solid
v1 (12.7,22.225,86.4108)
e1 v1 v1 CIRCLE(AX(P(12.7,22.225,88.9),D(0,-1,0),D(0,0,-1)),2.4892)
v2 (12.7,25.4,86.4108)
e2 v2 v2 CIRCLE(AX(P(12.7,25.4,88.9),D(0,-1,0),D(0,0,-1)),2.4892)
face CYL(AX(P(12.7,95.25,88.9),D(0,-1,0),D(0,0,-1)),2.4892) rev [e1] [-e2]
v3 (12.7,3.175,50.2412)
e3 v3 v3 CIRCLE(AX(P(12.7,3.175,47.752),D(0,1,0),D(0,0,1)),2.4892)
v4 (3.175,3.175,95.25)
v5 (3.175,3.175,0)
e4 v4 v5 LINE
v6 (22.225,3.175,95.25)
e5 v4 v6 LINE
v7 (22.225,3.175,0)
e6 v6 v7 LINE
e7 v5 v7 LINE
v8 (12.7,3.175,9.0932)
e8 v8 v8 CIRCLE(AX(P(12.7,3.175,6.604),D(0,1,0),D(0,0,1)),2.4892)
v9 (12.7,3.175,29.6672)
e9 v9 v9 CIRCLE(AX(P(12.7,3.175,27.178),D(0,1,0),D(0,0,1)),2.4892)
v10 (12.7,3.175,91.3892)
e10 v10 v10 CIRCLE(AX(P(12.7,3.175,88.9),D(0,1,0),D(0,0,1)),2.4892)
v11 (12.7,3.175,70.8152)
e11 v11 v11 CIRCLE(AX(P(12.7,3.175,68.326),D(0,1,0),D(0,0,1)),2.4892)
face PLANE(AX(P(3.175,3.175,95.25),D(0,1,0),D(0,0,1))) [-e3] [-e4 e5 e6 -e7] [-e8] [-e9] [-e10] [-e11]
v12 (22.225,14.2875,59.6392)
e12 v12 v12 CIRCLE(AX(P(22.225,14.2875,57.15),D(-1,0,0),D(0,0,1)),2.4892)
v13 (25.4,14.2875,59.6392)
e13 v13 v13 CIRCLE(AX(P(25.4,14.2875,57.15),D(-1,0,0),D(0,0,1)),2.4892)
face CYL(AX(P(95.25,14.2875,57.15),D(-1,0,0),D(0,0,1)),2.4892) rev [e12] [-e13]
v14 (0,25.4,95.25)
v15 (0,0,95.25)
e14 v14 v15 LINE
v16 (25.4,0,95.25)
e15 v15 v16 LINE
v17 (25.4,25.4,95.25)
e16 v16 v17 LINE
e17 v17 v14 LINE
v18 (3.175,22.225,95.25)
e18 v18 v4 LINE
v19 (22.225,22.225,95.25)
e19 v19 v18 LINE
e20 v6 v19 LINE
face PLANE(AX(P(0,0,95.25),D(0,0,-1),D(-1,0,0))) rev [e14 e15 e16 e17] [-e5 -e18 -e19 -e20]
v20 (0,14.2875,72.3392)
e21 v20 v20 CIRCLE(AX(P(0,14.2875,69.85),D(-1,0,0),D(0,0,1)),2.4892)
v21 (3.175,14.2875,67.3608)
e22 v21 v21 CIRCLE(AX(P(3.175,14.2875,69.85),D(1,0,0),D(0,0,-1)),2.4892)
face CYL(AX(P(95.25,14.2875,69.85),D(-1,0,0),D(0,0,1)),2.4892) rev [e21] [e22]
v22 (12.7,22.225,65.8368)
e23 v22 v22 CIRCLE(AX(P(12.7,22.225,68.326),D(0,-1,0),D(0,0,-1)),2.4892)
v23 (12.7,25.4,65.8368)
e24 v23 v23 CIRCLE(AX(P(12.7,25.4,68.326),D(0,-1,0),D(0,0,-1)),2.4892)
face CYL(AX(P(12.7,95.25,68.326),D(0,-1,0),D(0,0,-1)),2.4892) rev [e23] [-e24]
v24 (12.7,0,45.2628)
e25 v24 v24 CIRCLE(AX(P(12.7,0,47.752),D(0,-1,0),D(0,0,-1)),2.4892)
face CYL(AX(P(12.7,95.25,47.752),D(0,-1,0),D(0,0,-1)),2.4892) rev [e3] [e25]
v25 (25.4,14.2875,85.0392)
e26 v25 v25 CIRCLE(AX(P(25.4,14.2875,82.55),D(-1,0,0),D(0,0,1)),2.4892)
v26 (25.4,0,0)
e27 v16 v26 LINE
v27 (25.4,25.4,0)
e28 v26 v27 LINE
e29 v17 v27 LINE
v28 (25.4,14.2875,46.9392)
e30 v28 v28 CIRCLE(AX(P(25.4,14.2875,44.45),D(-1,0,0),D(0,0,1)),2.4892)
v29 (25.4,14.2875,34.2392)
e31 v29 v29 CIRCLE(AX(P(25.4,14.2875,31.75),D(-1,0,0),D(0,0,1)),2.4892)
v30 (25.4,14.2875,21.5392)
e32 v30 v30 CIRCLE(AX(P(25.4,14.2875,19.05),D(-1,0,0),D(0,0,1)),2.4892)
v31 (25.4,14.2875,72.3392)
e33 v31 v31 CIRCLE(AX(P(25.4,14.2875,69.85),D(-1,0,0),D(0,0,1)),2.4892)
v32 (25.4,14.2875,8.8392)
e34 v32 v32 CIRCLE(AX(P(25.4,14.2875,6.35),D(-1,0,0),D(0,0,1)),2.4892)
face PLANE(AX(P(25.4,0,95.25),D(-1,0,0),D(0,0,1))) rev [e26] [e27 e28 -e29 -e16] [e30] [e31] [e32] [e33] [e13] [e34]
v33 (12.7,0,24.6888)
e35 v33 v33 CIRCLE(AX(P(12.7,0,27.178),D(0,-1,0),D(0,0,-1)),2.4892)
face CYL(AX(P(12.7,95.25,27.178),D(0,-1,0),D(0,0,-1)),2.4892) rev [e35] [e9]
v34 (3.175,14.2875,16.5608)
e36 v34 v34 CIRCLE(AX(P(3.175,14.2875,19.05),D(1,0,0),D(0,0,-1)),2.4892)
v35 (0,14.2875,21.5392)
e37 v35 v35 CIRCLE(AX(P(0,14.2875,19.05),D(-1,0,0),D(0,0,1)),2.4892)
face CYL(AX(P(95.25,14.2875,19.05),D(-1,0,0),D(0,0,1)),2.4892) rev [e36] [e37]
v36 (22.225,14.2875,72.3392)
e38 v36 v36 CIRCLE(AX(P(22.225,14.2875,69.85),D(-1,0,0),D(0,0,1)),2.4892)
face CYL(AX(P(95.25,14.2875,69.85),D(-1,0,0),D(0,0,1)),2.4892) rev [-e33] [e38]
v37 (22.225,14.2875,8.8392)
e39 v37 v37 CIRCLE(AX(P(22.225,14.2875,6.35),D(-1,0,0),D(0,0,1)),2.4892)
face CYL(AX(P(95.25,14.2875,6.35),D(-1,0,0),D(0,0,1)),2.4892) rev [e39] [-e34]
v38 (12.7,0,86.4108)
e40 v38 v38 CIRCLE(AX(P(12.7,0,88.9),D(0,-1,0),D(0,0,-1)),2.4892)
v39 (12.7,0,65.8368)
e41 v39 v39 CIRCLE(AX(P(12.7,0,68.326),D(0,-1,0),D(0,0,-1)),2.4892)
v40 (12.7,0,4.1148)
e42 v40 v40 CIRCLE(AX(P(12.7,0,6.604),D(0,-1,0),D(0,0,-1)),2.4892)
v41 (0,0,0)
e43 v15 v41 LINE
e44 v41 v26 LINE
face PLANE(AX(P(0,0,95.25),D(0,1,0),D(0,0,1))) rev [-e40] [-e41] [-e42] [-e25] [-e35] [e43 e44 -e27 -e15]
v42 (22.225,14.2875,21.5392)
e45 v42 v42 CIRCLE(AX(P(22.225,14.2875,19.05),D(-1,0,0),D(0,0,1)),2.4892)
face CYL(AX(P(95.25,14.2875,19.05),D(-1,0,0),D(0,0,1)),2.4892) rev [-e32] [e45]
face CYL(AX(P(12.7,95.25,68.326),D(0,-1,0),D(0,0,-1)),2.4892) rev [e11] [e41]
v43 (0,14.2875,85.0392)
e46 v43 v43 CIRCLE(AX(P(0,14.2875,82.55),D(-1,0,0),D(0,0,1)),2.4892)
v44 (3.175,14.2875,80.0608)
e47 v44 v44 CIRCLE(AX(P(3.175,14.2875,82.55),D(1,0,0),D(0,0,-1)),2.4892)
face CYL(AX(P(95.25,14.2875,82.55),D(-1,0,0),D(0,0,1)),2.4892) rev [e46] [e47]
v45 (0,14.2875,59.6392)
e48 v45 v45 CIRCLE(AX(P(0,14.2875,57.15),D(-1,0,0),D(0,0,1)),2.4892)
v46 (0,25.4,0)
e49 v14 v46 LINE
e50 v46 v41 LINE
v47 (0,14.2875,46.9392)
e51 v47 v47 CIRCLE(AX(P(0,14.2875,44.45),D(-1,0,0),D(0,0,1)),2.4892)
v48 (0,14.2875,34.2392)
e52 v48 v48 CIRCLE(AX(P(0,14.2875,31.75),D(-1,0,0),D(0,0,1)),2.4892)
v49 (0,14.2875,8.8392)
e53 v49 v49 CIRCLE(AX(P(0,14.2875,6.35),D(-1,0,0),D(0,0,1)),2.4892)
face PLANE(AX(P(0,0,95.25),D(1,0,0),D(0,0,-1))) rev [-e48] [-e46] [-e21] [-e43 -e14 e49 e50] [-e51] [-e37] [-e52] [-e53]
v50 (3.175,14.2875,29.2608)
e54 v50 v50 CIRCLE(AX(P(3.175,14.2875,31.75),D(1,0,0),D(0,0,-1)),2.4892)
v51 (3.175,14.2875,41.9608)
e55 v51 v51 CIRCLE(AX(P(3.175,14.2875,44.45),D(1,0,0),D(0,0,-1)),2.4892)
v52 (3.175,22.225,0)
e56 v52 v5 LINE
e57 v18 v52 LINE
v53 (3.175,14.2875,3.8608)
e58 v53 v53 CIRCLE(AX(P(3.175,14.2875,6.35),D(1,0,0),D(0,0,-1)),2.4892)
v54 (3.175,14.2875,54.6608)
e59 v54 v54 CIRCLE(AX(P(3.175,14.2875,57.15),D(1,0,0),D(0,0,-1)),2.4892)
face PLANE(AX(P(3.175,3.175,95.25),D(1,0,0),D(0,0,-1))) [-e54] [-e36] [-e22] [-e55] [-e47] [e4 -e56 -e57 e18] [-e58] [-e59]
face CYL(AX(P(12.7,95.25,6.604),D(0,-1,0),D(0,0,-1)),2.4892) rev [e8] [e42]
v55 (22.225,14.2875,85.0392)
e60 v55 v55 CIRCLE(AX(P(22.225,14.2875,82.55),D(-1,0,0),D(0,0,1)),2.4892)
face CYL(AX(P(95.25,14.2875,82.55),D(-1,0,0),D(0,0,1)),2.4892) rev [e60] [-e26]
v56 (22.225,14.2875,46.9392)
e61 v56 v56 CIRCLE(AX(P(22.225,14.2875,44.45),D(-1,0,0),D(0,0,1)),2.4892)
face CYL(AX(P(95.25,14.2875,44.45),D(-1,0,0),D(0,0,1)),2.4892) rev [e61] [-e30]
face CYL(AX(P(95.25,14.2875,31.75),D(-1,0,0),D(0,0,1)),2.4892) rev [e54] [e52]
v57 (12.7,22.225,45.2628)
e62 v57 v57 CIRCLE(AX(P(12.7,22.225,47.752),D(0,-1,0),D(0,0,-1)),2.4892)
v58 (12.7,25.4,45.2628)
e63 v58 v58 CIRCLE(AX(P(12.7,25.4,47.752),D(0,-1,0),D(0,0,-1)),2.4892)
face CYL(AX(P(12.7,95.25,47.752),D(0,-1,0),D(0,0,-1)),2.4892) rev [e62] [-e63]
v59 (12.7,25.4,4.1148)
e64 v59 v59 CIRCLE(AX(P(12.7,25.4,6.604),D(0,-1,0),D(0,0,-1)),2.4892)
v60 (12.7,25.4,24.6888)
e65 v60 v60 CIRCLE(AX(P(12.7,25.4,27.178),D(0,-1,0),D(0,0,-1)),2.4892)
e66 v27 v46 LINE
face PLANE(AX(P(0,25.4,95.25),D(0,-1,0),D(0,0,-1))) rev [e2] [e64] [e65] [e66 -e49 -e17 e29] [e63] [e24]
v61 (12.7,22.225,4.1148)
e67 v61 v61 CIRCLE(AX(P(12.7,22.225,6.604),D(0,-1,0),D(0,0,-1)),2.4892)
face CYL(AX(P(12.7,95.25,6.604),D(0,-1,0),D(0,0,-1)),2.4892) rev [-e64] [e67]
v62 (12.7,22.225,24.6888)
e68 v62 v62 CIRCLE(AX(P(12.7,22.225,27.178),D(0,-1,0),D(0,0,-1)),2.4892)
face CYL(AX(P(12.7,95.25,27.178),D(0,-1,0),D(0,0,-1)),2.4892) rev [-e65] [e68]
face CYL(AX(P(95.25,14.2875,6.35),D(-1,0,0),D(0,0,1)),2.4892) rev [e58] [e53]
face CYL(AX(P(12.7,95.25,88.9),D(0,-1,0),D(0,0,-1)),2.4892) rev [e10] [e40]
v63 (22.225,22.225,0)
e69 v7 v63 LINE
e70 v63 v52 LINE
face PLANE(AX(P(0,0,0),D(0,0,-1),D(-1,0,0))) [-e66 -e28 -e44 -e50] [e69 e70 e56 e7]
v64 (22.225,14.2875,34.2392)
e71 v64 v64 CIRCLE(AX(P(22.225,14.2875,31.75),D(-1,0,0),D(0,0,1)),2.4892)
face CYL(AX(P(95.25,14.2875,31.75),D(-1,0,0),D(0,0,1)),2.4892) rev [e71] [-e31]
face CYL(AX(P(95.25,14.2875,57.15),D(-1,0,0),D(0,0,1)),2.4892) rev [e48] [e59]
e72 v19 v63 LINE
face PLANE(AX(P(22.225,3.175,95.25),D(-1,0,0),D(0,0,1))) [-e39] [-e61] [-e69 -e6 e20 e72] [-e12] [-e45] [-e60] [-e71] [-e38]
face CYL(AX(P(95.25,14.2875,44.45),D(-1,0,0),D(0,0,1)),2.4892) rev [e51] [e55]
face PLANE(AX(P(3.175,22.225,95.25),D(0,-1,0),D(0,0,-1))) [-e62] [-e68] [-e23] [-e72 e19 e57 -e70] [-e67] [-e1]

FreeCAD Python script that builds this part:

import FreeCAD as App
import Part
import Sketcher

V = App.Vector
Q = App.Units.Quantity

doc = App.newDocument("Part")
body = doc.addObject("PartDesign::Body", "Body")

# Sketch on XY plane
sketch1 = body.newObject("Sketcher::SketchObject", "Sketch")
sketch1.AttachmentSupport = (doc.getObject("XY_Plane"), [""])
sketch1.MapMode = "FlatFace"
sketch1.addGeometry(Part.LineSegment(V(0, 25.4, 0), V(0, 0, 0)), False)
sketch1.addGeometry(Part.LineSegment(V(0, 0, 0), V(25.4, 0, 0)), False)
sketch1.addGeometry(Part.LineSegment(V(25.4, 0, 0), V(25.4, 25.4, 0)), False)
sketch1.addGeometry(Part.LineSegment(V(25.4, 25.4, 0), V(0, 25.4, 0)), False)
sketch1.addGeometry(Part.LineSegment(V(22.225, 3.175, 0), V(3.175, 3.175, 0)), False)
sketch1.addGeometry(Part.LineSegment(V(3.175, 3.175, 0), V(3.175, 22.225, 0)), False)
sketch1.addGeometry(Part.LineSegment(V(3.175, 22.225, 0), V(22.225, 22.225, 0)), False)
sketch1.addGeometry(Part.LineSegment(V(22.225, 22.225, 0), V(22.225, 3.175, 0)), False)
sketch1.addConstraint(Sketcher.Constraint("Coincident", 0, 2, 1, 1))
sketch1.addConstraint(Sketcher.Constraint("Coincident", 1, 2, 2, 1))
sketch1.addConstraint(Sketcher.Constraint("Coincident", 2, 2, 3, 1))
sketch1.addConstraint(Sketcher.Constraint("Coincident", 3, 2, 0, 1))
sketch1.addConstraint(Sketcher.Constraint("Coincident", 4, 2, 5, 1))
sketch1.addConstraint(Sketcher.Constraint("Coincident", 5, 2, 6, 1))
sketch1.addConstraint(Sketcher.Constraint("Coincident", 6, 2, 7, 1))
sketch1.addConstraint(Sketcher.Constraint("Coincident", 7, 2, 4, 1))
sketch1.addConstraint(Sketcher.Constraint("Vertical", 0))
sketch1.addConstraint(Sketcher.Constraint("Horizontal", 1))
sketch1.addConstraint(Sketcher.Constraint("Vertical", 2))
sketch1.addConstraint(Sketcher.Constraint("Horizontal", 3))
sketch1.addConstraint(Sketcher.Constraint("Horizontal", 4))
sketch1.addConstraint(Sketcher.Constraint("Vertical", 5))
sketch1.addConstraint(Sketcher.Constraint("Horizontal", 6))
sketch1.addConstraint(Sketcher.Constraint("Vertical", 7))
sketch1.addConstraint(Sketcher.Constraint("Coincident", 0, 2, -1, 1))
sketch1.addConstraint(Sketcher.Constraint("Equal", 3, 0))
sketch1.addConstraint(Sketcher.Constraint("Equal", 6, 5))
sketch1.addConstraint(Sketcher.Constraint("DistanceX", 1, 1, 1, 2, Q("1 in")))
sketch1.addConstraint(Sketcher.Constraint("DistanceX", 4, 2, 4, 1, Q("0.75 in")))
sketch1.addConstraint(Sketcher.Constraint("DistanceX", -1, 1, 4, 2, Q("0.125 in")))
sketch1.addConstraint(Sketcher.Constraint("DistanceY", -1, 1, 4, 2, Q("0.125 in")))
pad1 = body.newObject("PartDesign::Pad", "Pad")
pad1.Profile = sketch1
pad1.Length = Q("3.75 in")

# Sketch on YZ plane
sketch2 = body.newObject("Sketcher::SketchObject", "Sketch001")
sketch2.AttachmentSupport = (doc.getObject("YZ_Plane"), [""])
sketch2.MapMode = "FlatFace"
sketch2.addGeometry(Part.Circle(V(14.2875, 82.55, 0), V(0, 0, 1), 2.4892), False)
sketch2.addGeometry(Part.Circle(V(14.2875, 69.85, 0), V(0, 0, 1), 2.4892), False)
sketch2.addGeometry(Part.Circle(V(14.2875, 57.15, 0), V(0, 0, 1), 2.4892), False)
sketch2.addGeometry(Part.Circle(V(14.2875, 44.45, 0), V(0, 0, 1), 2.4892), False)
sketch2.addGeometry(Part.Circle(V(14.2875, 31.75, 0), V(0, 0, 1), 2.4892), False)
sketch2.addGeometry(Part.Circle(V(14.2875, 19.05, 0), V(0, 0, 1), 2.4892), False)
sketch2.addGeometry(Part.Circle(V(14.2875, 6.35, 0), V(0, 0, 1), 2.4892), False)
sketch2.addConstraint(Sketcher.Constraint("Equal", 0, 1))
sketch2.addConstraint(Sketcher.Constraint("Equal", 1, 2))
sketch2.addConstraint(Sketcher.Constraint("Equal", 2, 3))
sketch2.addConstraint(Sketcher.Constraint("Equal", 3, 4))
sketch2.addConstraint(Sketcher.Constraint("Equal", 4, 5))
sketch2.addConstraint(Sketcher.Constraint("Equal", 5, 6))
sketch2.addConstraint(Sketcher.Constraint("Vertical", 0, 3, 1, 3))
sketch2.addConstraint(Sketcher.Constraint("Vertical", 1, 3, 2, 3))
sketch2.addConstraint(Sketcher.Constraint("Vertical", 2, 3, 3, 3))
sketch2.addConstraint(Sketcher.Constraint("Vertical", 3, 3, 4, 3))
sketch2.addConstraint(Sketcher.Constraint("Vertical", 4, 3, 5, 3))
sketch2.addConstraint(Sketcher.Constraint("Vertical", 5, 3, 6, 3))
sketch2.addConstraint(Sketcher.Constraint("Diameter", 0, Q("0.196 in")))
sketch2.addConstraint(Sketcher.Constraint("DistanceY", 2, 3, 0, 3, Q("1 in")))
sketch2.addConstraint(Sketcher.Constraint("DistanceY", 3, 3, 1, 3, Q("1 in")))
sketch2.addConstraint(Sketcher.Constraint("DistanceY", 4, 3, 2, 3, Q("1 in")))
sketch2.addConstraint(Sketcher.Constraint("DistanceY", 5, 3, 3, 3, Q("1 in")))
sketch2.addConstraint(Sketcher.Constraint("DistanceY", 6, 3, 4, 3, Q("1 in")))
sketch2.addConstraint(Sketcher.Constraint("DistanceY", 1, 3, 0, 3, Q("0.5 in")))
sketch2.addConstraint(Sketcher.Constraint("DistanceY", -1, 1, 0, 3, Q("3.25 in")))
sketch2.addConstraint(Sketcher.Constraint("DistanceX", -1, 1, 0, 3, Q("0.5625 in")))
pocket1 = body.newObject("PartDesign::Pocket", "Pocket")
pocket1.Profile = sketch2
pocket1.Length = Q("3.75 in")
pocket1.Reversed = True

# Sketch on XZ plane
sketch3 = body.newObject("Sketcher::SketchObject", "Sketch002")
sketch3.AttachmentSupport = (doc.getObject("XZ_Plane"), [""])
sketch3.MapMode = "FlatFace"
sketch3.addGeometry(Part.Circle(V(12.7, 88.9, 0), V(0, 0, 1), 2.4892), False)
sketch3.addGeometry(Part.Circle(V(12.7, 68.326, 0), V(0, 0, 1), 2.4892), False)
sketch3.addGeometry(Part.Circle(V(12.7, 47.752, 0), V(0, 0, 1), 2.4892), False)
sketch3.addGeometry(Part.Circle(V(12.7, 27.178, 0), V(0, 0, 1), 2.4892), False)
sketch3.addGeometry(Part.Circle(V(12.7, 6.604, 0), V(0, 0, 1), 2.4892), False)
sketch3.addConstraint(Sketcher.Constraint("Equal", 0, 1))
sketch3.addConstraint(Sketcher.Constraint("Equal", 1, 2))
sketch3.addConstraint(Sketcher.Constraint("Equal", 2, 3))
sketch3.addConstraint(Sketcher.Constraint("Equal", 3, 4))
sketch3.addConstraint(Sketcher.Constraint("Vertical", 0, 3, 1, 3))
sketch3.addConstraint(Sketcher.Constraint("Vertical", 1, 3, 2, 3))
sketch3.addConstraint(Sketcher.Constraint("Vertical", 2, 3, 3, 3))
sketch3.addConstraint(Sketcher.Constraint("Vertical", 3, 3, 4, 3))
sketch3.addConstraint(Sketcher.Constraint("Diameter", 0, Q("0.196 in")))
sketch3.addConstraint(Sketcher.Constraint("DistanceX", -1, 1, 0, 3, Q("0.5 in")))
sketch3.addConstraint(Sketcher.Constraint("DistanceY", -1, 1, 0, 3, Q("3.5 in")))
sketch3.addConstraint(Sketcher.Constraint("DistanceY", -1, 1, 1, 3, Q("2.69 in")))
sketch3.addConstraint(Sketcher.Constraint("DistanceY", -1, 1, 2, 3, Q("1.88 in")))
sketch3.addConstraint(Sketcher.Constraint("DistanceY", -1, 1, 3, 3, Q("1.07 in")))
sketch3.addConstraint(Sketcher.Constraint("DistanceY", -1, 1, 4, 3, Q("0.26 in")))
pocket2 = body.newObject("PartDesign::Pocket", "Pocket001")
pocket2.Profile = sketch3
pocket2.Length = Q("3.75 in")

doc.recompute()
